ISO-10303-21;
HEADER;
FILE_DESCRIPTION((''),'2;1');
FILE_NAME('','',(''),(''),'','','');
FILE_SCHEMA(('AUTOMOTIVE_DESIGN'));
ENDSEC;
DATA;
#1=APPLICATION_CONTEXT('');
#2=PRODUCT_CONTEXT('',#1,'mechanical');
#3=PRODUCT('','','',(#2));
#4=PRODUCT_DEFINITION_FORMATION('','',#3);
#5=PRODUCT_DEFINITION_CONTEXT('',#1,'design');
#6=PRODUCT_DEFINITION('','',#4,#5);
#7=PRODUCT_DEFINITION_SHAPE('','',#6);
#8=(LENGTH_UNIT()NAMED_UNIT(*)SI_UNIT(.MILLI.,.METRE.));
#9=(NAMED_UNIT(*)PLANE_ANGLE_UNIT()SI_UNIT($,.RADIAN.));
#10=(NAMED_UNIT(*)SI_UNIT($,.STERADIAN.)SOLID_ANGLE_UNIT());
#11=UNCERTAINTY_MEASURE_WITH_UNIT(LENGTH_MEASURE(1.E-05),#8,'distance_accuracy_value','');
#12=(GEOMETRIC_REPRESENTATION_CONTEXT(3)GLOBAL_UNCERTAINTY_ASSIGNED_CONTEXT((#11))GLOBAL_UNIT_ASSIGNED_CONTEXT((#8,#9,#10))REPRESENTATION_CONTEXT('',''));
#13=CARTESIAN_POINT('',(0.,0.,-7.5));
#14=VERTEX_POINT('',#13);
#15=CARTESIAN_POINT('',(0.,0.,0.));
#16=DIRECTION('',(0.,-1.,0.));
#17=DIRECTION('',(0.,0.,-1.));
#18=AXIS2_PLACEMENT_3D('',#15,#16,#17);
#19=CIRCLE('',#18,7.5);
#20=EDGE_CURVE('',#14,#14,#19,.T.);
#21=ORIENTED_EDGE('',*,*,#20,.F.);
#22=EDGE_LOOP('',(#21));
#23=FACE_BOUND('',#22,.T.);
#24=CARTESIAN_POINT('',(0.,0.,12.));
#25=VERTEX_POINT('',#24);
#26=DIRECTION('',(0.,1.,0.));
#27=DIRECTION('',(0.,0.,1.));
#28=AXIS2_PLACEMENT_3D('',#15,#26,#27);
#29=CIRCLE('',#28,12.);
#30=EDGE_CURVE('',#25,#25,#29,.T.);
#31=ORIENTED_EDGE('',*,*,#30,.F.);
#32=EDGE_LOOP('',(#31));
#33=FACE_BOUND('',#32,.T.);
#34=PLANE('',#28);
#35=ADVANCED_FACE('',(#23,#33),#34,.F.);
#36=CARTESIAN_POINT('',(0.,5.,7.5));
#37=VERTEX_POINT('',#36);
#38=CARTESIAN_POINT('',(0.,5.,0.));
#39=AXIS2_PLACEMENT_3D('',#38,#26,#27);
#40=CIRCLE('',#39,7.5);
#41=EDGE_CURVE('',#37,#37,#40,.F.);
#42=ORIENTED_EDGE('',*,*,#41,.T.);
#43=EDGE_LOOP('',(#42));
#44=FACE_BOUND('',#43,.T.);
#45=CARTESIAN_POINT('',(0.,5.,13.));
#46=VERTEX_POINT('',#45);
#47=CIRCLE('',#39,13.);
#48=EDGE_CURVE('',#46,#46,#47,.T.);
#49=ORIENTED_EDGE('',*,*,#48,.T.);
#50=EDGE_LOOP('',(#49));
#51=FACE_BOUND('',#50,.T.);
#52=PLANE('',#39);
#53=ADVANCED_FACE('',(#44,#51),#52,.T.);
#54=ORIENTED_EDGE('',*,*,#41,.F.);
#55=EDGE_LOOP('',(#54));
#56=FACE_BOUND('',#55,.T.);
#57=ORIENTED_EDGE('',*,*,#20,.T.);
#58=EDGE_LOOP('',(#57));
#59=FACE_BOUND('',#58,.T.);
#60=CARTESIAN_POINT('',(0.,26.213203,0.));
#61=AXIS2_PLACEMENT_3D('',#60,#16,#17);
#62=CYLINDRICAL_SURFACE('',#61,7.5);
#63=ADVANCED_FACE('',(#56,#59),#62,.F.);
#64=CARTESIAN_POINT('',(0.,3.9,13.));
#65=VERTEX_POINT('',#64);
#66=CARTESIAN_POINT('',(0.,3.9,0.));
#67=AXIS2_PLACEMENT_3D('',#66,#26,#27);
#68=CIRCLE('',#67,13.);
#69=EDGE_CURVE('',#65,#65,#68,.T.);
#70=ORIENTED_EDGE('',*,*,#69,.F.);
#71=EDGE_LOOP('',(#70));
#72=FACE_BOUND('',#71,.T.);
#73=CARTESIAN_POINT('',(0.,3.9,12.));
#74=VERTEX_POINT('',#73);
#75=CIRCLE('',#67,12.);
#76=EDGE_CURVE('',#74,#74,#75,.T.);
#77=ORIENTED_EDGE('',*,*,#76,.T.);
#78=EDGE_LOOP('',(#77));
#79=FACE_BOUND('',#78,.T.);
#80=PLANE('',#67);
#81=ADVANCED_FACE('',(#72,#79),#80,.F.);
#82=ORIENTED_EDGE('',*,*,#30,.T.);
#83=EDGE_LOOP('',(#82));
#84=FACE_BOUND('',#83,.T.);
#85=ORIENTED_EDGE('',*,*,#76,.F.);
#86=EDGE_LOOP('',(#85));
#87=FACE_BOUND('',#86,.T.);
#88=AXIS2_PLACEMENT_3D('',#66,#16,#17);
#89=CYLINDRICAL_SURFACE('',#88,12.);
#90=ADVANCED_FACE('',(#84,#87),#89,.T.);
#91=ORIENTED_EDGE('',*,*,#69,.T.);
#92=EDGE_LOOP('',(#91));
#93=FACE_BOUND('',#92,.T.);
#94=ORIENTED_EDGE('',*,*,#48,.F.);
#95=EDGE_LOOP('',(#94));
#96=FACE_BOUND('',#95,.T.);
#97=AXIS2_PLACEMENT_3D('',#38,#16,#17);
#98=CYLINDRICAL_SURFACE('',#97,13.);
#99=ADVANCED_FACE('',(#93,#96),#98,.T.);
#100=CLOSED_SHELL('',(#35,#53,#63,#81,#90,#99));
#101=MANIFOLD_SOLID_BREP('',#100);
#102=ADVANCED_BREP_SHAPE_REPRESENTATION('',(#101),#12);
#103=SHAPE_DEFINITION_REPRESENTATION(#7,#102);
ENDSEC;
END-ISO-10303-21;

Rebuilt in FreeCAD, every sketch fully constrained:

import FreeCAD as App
import Part
import Sketcher
from FreeCAD import Vector

doc = App.newDocument("Part")
body = doc.addObject("PartDesign::Body", "Body")

# Sketch on XZ plane
sketch1 = body.newObject("Sketcher::SketchObject", "Sketch")
sketch1.AttachmentSupport = (doc.getObject("XZ_Plane"), [""])
sketch1.MapMode = "FlatFace"
sketch1.addGeometry(Part.Circle(Vector(0, 0, 0), Vector(0, 0, 1), 12), False)
sketch1.addConstraint([
    Sketcher.Constraint("Coincident", 0, 3, -1, 1),
    Sketcher.Constraint("Diameter", 0, 24.0),
])
pad1 = body.newObject("PartDesign::Pad", "Pad")
pad1.Profile = sketch1
pad1.Length = 3.9
pad1.Reversed = True

# Sketch on XZ plane
sketch2 = body.newObject("Sketcher::SketchObject", "Sketch001")
sketch2.AttachmentSupport = (doc.getObject("XZ_Plane"), [""])
sketch2.MapMode = "FlatFace"
sketch2.AttachmentOffset = App.Placement(Vector(0, 0, -3.9), App.Rotation())
sketch2.addGeometry(Part.Circle(Vector(0, 0, 0), Vector(0, 0, 1), 13), False)
sketch2.addConstraint([
    Sketcher.Constraint("Coincident", 0, 3, -1, 1),
    Sketcher.Constraint("Diameter", 0, 26.0),
])
pad2 = body.newObject("PartDesign::Pad", "Pad001")
pad2.Profile = sketch2
pad2.Length = 1.1
pad2.Reversed = True

# Sketch on XZ plane
sketch3 = body.newObject("Sketcher::SketchObject", "Sketch002")
sketch3.AttachmentSupport = (doc.getObject("XZ_Plane"), [""])
sketch3.MapMode = "FlatFace"
sketch3.addGeometry(Part.Circle(Vector(0, 0, 0), Vector(0, 0, 1), 8), False)
sketch3.addConstraint([
    Sketcher.Constraint("Coincident", 0, 3, -1, 1),
    Sketcher.Constraint("Diameter", 0, 15.0),
])
pocket1 = body.newObject("PartDesign::Pocket", "Pocket")
pocket1.Profile = sketch3
pocket1.Length = 5

doc.recompute()
